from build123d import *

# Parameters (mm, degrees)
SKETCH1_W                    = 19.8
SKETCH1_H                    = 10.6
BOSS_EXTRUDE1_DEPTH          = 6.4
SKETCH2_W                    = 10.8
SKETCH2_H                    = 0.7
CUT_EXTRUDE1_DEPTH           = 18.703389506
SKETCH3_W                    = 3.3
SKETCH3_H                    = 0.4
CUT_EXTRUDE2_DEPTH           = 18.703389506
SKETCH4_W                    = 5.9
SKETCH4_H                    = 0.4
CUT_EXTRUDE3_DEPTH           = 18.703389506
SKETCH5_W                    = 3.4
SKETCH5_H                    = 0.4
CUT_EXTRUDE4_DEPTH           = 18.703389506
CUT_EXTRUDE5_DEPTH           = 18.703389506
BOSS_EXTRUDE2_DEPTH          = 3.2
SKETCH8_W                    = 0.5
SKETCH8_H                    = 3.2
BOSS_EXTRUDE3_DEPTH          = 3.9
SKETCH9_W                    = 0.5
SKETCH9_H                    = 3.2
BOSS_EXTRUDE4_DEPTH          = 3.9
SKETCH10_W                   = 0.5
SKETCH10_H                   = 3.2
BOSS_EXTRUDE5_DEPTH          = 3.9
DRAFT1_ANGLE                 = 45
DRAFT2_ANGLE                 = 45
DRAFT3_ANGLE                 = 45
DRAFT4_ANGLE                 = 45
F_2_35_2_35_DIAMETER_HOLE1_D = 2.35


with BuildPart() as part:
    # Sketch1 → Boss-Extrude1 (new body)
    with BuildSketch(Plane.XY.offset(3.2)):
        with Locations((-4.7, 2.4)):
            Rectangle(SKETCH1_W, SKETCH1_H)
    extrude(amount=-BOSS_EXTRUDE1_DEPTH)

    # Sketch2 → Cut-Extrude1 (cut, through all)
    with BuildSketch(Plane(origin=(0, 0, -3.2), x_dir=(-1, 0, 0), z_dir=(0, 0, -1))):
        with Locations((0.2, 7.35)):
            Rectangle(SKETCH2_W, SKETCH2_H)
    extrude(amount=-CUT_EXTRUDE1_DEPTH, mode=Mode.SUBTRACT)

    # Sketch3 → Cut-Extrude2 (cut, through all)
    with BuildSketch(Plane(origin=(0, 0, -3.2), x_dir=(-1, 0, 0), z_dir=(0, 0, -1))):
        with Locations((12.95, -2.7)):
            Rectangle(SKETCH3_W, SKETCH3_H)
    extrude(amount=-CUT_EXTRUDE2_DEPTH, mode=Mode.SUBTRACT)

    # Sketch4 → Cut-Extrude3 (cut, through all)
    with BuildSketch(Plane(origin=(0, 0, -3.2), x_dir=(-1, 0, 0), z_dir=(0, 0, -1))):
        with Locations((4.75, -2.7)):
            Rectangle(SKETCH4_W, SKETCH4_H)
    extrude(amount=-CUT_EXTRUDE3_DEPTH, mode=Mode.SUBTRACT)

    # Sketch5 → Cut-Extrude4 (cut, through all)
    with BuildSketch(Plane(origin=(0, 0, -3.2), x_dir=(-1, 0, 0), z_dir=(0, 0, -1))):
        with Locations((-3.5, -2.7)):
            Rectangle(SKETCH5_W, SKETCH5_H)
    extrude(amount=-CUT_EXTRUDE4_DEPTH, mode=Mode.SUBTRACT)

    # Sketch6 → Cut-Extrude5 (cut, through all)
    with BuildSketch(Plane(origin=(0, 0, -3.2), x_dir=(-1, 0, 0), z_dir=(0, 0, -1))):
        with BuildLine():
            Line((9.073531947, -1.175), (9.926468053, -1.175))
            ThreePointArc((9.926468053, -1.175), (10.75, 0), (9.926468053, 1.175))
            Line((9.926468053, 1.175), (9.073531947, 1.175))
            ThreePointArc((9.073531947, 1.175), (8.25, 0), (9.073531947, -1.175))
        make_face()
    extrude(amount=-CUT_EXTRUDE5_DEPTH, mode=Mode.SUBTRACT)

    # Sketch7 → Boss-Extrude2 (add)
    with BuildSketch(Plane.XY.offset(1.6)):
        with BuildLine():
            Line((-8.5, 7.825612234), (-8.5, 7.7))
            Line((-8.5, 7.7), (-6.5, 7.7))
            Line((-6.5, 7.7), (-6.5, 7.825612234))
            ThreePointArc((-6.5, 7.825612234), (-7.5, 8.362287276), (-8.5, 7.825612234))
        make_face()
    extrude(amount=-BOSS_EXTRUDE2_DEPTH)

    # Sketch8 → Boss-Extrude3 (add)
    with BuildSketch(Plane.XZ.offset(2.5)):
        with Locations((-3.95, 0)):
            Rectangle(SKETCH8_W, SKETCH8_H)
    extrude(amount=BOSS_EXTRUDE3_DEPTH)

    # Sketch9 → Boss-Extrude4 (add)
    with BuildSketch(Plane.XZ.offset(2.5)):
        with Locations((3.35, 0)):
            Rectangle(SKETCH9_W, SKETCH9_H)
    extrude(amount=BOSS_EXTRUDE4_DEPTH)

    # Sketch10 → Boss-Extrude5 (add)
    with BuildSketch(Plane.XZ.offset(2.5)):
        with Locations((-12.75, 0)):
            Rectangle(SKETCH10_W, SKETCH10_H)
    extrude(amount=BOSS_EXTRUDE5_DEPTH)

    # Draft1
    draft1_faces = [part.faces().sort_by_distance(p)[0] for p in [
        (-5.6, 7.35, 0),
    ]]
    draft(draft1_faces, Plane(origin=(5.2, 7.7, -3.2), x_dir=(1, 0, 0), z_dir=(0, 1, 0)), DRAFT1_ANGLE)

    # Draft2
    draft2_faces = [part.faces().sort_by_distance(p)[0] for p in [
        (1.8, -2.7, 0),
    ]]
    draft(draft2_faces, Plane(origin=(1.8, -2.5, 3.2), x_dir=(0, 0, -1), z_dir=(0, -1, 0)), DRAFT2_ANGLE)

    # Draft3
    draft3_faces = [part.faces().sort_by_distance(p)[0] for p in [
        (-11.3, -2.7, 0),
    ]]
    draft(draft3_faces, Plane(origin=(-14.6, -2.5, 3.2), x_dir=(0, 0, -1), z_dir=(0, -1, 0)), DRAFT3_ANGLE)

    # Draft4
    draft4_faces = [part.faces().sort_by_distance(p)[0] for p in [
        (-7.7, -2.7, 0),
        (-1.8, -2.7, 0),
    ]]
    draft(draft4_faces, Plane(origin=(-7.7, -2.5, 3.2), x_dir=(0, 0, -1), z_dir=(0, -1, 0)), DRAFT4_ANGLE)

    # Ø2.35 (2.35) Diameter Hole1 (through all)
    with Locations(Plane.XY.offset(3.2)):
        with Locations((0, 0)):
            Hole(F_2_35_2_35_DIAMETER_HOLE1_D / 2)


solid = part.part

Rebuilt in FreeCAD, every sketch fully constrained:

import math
import FreeCAD as App
import Part
import Sketcher
Q = App.Units.Quantity


def faces_at(feature, points):
    """Names of the faces that lie closest to the given points."""
    faces = feature.Shape.Faces
    near = lambda p: min(range(len(faces)), key=lambda i: faces[i].distToShape(Part.Vertex(*p))[0])
    return sorted({f"Face{near(p) + 1}" for p in points})

doc = App.newDocument("Part")
body = doc.addObject("PartDesign::Body", "Body")

# Sketch on XY plane
sketch1 = body.newObject("Sketcher::SketchObject", "Sketch")
sketch1.AttachmentSupport = (doc.getObject("XY_Plane"), [""])
sketch1.MapMode = "FlatFace"
sketch1.AttachmentOffset = App.Placement(App.Vector(0, 0, 3.2), App.Rotation())
sketch1.addGeometry(Part.LineSegment(App.Vector(-15, 8, 0), App.Vector(-15, -3, 0)), False)
sketch1.addGeometry(Part.LineSegment(App.Vector(-15, -3, 0), App.Vector(5, -3, 0)), False)
sketch1.addGeometry(Part.LineSegment(App.Vector(5, -3, 0), App.Vector(5, 8, 0)), False)
sketch1.addGeometry(Part.LineSegment(App.Vector(5, 8, 0), App.Vector(-15, 8, 0)), False)
sketch1.addConstraint(Sketcher.Constraint("Coincident", 0, 2, 1, 1))
sketch1.addConstraint(Sketcher.Constraint("Coincident", 1, 2, 2, 1))
sketch1.addConstraint(Sketcher.Constraint("Coincident", 2, 2, 3, 1))
sketch1.addConstraint(Sketcher.Constraint("Coincident", 3, 2, 0, 1))
sketch1.addConstraint(Sketcher.Constraint("Vertical", 0))
sketch1.addConstraint(Sketcher.Constraint("Horizontal", 1))
sketch1.addConstraint(Sketcher.Constraint("Vertical", 2))
sketch1.addConstraint(Sketcher.Constraint("Horizontal", 3))
sketch1.addConstraint(Sketcher.Constraint("DistanceX", 1, 1, 1, 2, Q("19.8 mm")))
sketch1.addConstraint(Sketcher.Constraint("DistanceY", 0, 2, 0, 1, Q("10.6 mm")))
sketch1.addConstraint(Sketcher.Constraint("DistanceX", 0, 2, -1, 1, Q("14.6 mm")))
sketch1.addConstraint(Sketcher.Constraint("DistanceY", 0, 2, -1, 1, Q("2.9 mm")))
pad1 = body.newObject("PartDesign::Pad", "Pad")
pad1.Profile = sketch1
pad1.Length = 6.4
pad1.Reversed = True

# Sketch on XY plane
sketch2 = body.newObject("Sketcher::SketchObject", "Sketch001")
sketch2.AttachmentSupport = (doc.getObject("XY_Plane"), [""])
sketch2.MapMode = "FlatFace"
sketch2.AttachmentOffset = App.Placement(App.Vector(0, 0, -3.2), App.Rotation())
sketch2.addGeometry(Part.LineSegment(App.Vector(5.2, 7.7, 0), App.Vector(5.2, 7, 0)), False)
sketch2.addGeometry(Part.LineSegment(App.Vector(5.2, 7, 0), App.Vector(-5.6, 7, 0)), False)
sketch2.addGeometry(Part.LineSegment(App.Vector(-5.6, 7, 0), App.Vector(-5.6, 7.7, 0)), False)
sketch2.addGeometry(Part.LineSegment(App.Vector(-5.6, 7.7, 0), App.Vector(5.2, 7.7, 0)), False)
sketch2.addConstraint(Sketcher.Constraint("Coincident", 0, 2, 1, 1))
sketch2.addConstraint(Sketcher.Constraint("Coincident", 1, 2, 2, 1))
sketch2.addConstraint(Sketcher.Constraint("Coincident", 2, 2, 3, 1))
sketch2.addConstraint(Sketcher.Constraint("Coincident", 3, 2, 0, 1))
sketch2.addConstraint(Sketcher.Constraint("Vertical", 0))
sketch2.addConstraint(Sketcher.Constraint("Horizontal", 1))
sketch2.addConstraint(Sketcher.Constraint("Vertical", 2))
sketch2.addConstraint(Sketcher.Constraint("Horizontal", 3))
sketch2.addConstraint(Sketcher.Constraint("DistanceX", 1, 2, 1, 1, Q("10.8 mm")))
sketch2.addConstraint(Sketcher.Constraint("DistanceY", 0, 2, 0, 1, Q("0.7 mm")))
sketch2.addConstraint(Sketcher.Constraint("DistanceY", -1, 1, 0, 2, Q("7 mm")))
sketch2.addConstraint(Sketcher.Constraint("DistanceX", -1, 1, 0, 2, Q("5.2 mm")))
pocket1 = body.newObject("PartDesign::Pocket", "Pocket")
pocket1.Profile = sketch2
pocket1.Type = "ThroughAll"
pocket1.Reversed = True

# Sketch on XY plane
sketch3 = body.newObject("Sketcher::SketchObject", "Sketch002")
sketch3.AttachmentSupport = (doc.getObject("XY_Plane"), [""])
sketch3.MapMode = "FlatFace"
sketch3.AttachmentOffset = App.Placement(App.Vector(0, 0, -3.2), App.Rotation())
sketch3.addGeometry(Part.LineSegment(App.Vector(-11.3, -2.5, 0), App.Vector(-11.3, -2.9, 0)), False)
sketch3.addGeometry(Part.LineSegment(App.Vector(-11.3, -2.9, 0), App.Vector(-14.6, -2.9, 0)), False)
sketch3.addGeometry(Part.LineSegment(App.Vector(-14.6, -2.9, 0), App.Vector(-14.6, -2.5, 0)), False)
sketch3.addGeometry(Part.LineSegment(App.Vector(-14.6, -2.5, 0), App.Vector(-11.3, -2.5, 0)), False)
sketch3.addConstraint(Sketcher.Constraint("Coincident", 0, 2, 1, 1))
sketch3.addConstraint(Sketcher.Constraint("Coincident", 1, 2, 2, 1))
sketch3.addConstraint(Sketcher.Constraint("Coincident", 2, 2, 3, 1))
sketch3.addConstraint(Sketcher.Constraint("Coincident", 3, 2, 0, 1))
sketch3.addConstraint(Sketcher.Constraint("Vertical", 0))
sketch3.addConstraint(Sketcher.Constraint("Horizontal", 1))
sketch3.addConstraint(Sketcher.Constraint("Vertical", 2))
sketch3.addConstraint(Sketcher.Constraint("Horizontal", 3))
sketch3.addConstraint(Sketcher.Constraint("DistanceX", 1, 2, 1, 1, Q("3.3 mm")))
sketch3.addConstraint(Sketcher.Constraint("DistanceY", 0, 2, 0, 1, Q("0.4 mm")))
sketch3.addConstraint(Sketcher.Constraint("DistanceX", 0, 2, -1, 1, Q("11.3 mm")))
sketch3.addConstraint(Sketcher.Constraint("DistanceY", 0, 2, -1, 1, Q("2.9 mm")))
pocket2 = body.newObject("PartDesign::Pocket", "Pocket001")
pocket2.Profile = sketch3
pocket2.Type = "ThroughAll"
pocket2.Reversed = True

# Sketch on XY plane
sketch4 = body.newObject("Sketcher::SketchObject", "Sketch003")
sketch4.AttachmentSupport = (doc.getObject("XY_Plane"), [""])
sketch4.MapMode = "FlatFace"
sketch4.AttachmentOffset = App.Placement(App.Vector(0, 0, -3.2), App.Rotation())
sketch4.addGeometry(Part.LineSegment(App.Vector(-1.8, -2.5, 0), App.Vector(-1.8, -2.9, 0)), False)
sketch4.addGeometry(Part.LineSegment(App.Vector(-1.8, -2.9, 0), App.Vector(-7.7, -2.9, 0)), False)
sketch4.addGeometry(Part.LineSegment(App.Vector(-7.7, -2.9, 0), App.Vector(-7.7, -2.5, 0)), False)
sketch4.addGeometry(Part.LineSegment(App.Vector(-7.7, -2.5, 0), App.Vector(-1.8, -2.5, 0)), False)
sketch4.addConstraint(Sketcher.Constraint("Coincident", 0, 2, 1, 1))
sketch4.addConstraint(Sketcher.Constraint("Coincident", 1, 2, 2, 1))
sketch4.addConstraint(Sketcher.Constraint("Coincident", 2, 2, 3, 1))
sketch4.addConstraint(Sketcher.Constraint("Coincident", 3, 2, 0, 1))
sketch4.addConstraint(Sketcher.Constraint("Vertical", 0))
sketch4.addConstraint(Sketcher.Constraint("Horizontal", 1))
sketch4.addConstraint(Sketcher.Constraint("Vertical", 2))
sketch4.addConstraint(Sketcher.Constraint("Horizontal", 3))
sketch4.addConstraint(Sketcher.Constraint("DistanceX", 1, 2, 1, 1, Q("5.9 mm")))
sketch4.addConstraint(Sketcher.Constraint("DistanceY", 0, 2, 0, 1, Q("0.4 mm")))
sketch4.addConstraint(Sketcher.Constraint("DistanceX", 0, 2, -1, 1, Q("1.8 mm")))
sketch4.addConstraint(Sketcher.Constraint("DistanceY", 0, 2, -1, 1, Q("2.9 mm")))
pocket3 = body.newObject("PartDesign::Pocket", "Pocket002")
pocket3.Profile = sketch4
pocket3.Type = "ThroughAll"
pocket3.Reversed = True

# Sketch on XY plane
sketch5 = body.newObject("Sketcher::SketchObject", "Sketch004")
sketch5.AttachmentSupport = (doc.getObject("XY_Plane"), [""])
sketch5.MapMode = "FlatFace"
sketch5.AttachmentOffset = App.Placement(App.Vector(0, 0, -3.2), App.Rotation())
sketch5.addGeometry(Part.LineSegment(App.Vector(5.2, -2.5, 0), App.Vector(5.2, -2.9, 0)), False)
sketch5.addGeometry(Part.LineSegment(App.Vector(5.2, -2.9, 0), App.Vector(1.8, -2.9, 0)), False)
sketch5.addGeometry(Part.LineSegment(App.Vector(1.8, -2.9, 0), App.Vector(1.8, -2.5, 0)), False)
sketch5.addGeometry(Part.LineSegment(App.Vector(1.8, -2.5, 0), App.Vector(5.2, -2.5, 0)), False)
sketch5.addConstraint(Sketcher.Constraint("Coincident", 0, 2, 1, 1))
sketch5.addConstraint(Sketcher.Constraint("Coincident", 1, 2, 2, 1))
sketch5.addConstraint(Sketcher.Constraint("Coincident", 2, 2, 3, 1))
sketch5.addConstraint(Sketcher.Constraint("Coincident", 3, 2, 0, 1))
sketch5.addConstraint(Sketcher.Constraint("Vertical", 0))
sketch5.addConstraint(Sketcher.Constraint("Horizontal", 1))
sketch5.addConstraint(Sketcher.Constraint("Vertical", 2))
sketch5.addConstraint(Sketcher.Constraint("Horizontal", 3))
sketch5.addConstraint(Sketcher.Constraint("DistanceX", 1, 2, 1, 1, Q("3.4 mm")))
sketch5.addConstraint(Sketcher.Constraint("DistanceY", 0, 2, 0, 1, Q("0.4 mm")))
sketch5.addConstraint(Sketcher.Constraint("DistanceX", -1, 1, 0, 2, Q("5.2 mm")))
sketch5.addConstraint(Sketcher.Constraint("DistanceY", 0, 2, -1, 1, Q("2.9 mm")))
pocket4 = body.newObject("PartDesign::Pocket", "Pocket003")
pocket4.Profile = sketch5
pocket4.Type = "ThroughAll"
pocket4.Reversed = True

# Sketch on XY plane
sketch6 = body.newObject("Sketcher::SketchObject", "Sketch005")
sketch6.AttachmentSupport = (doc.getObject("XY_Plane"), [""])
sketch6.MapMode = "FlatFace"
sketch6.AttachmentOffset = App.Placement(App.Vector(0, 0, -3.2), App.Rotation())
sketch6.addGeometry(Part.LineSegment(App.Vector(-9.1, -1.2, 0), App.Vector(-9.9, -1.2, 0)), False)
sketch6.addGeometry(Part.ArcOfCircle(Part.Circle(App.Vector(-9.5, 0, 0), App.Vector(0, 0, 1), 1.2), math.radians(110), math.radians(250)), False)
sketch6.addGeometry(Part.LineSegment(App.Vector(-9.9, 1.2, 0), App.Vector(-9.1, 1.2, 0)), False)
sketch6.addGeometry(Part.ArcOfCircle(Part.Circle(App.Vector(-9.5, 0, 0), App.Vector(0, 0, 1), 1.2), math.radians(-70), math.radians(70)), False)
sketch6.addConstraint(Sketcher.Constraint("Coincident", 0, 2, 1, 2))
sketch6.addConstraint(Sketcher.Constraint("Coincident", 1, 1, 2, 1))
sketch6.addConstraint(Sketcher.Constraint("Coincident", 2, 2, 3, 2))
sketch6.addConstraint(Sketcher.Constraint("Coincident", 3, 1, 0, 1))
sketch6.addConstraint(Sketcher.Constraint("Horizontal", 0))
sketch6.addConstraint(Sketcher.Constraint("Horizontal", 2))
sketch6.addConstraint(Sketcher.Constraint("Coincident", 3, 3, 1, 3))
sketch6.addConstraint(Sketcher.Constraint("Equal", 1, 3))
sketch6.addConstraint(Sketcher.Constraint("Symmetric", 0, 2, 1, 1, -1))
sketch6.addConstraint(Sketcher.Constraint("Radius", 1, Q("1.25 mm")))
sketch6.addConstraint(Sketcher.Constraint("DistanceX", 1, 3, -1, 1, Q("9.5 mm")))
sketch6.addConstraint(Sketcher.Constraint("DistanceY", 0, 2, 1, 1, Q("2.35 mm")))
pocket5 = body.newObject("PartDesign::Pocket", "Pocket004")
pocket5.Profile = sketch6
pocket5.Type = "ThroughAll"
pocket5.Reversed = True

# Sketch on XY plane
sketch7 = body.newObject("Sketcher::SketchObject", "Sketch006")
sketch7.AttachmentSupport = (doc.getObject("XY_Plane"), [""])
sketch7.MapMode = "FlatFace"
sketch7.AttachmentOffset = App.Placement(App.Vector(0, 0, 1.6), App.Rotation())
sketch7.addGeometry(Part.LineSegment(App.Vector(-8.5, 7.83, 0), App.Vector(-8.5, 7.7, 0)), False)
sketch7.addGeometry(Part.LineSegment(App.Vector(-8.5, 7.7, 0), App.Vector(-6.5, 7.7, 0)), False)
sketch7.addGeometry(Part.LineSegment(App.Vector(-6.5, 7.7, 0), App.Vector(-6.5, 7.83, 0)), False)
sketch7.addGeometry(Part.ArcOfCircle(Part.Circle(App.Vector(-7.5, 7.16, 0), App.Vector(0, 0, 1), 1.2), math.radians(34), math.radians(146)), False)
sketch7.addConstraint(Sketcher.Constraint("Coincident", 0, 2, 1, 1))
sketch7.addConstraint(Sketcher.Constraint("Coincident", 1, 2, 2, 1))
sketch7.addConstraint(Sketcher.Constraint("Coincident", 2, 2, 3, 1))
sketch7.addConstraint(Sketcher.Constraint("Coincident", 3, 2, 0, 1))
sketch7.addConstraint(Sketcher.Constraint("Vertical", 0))
sketch7.addConstraint(Sketcher.Constraint("Horizontal", 1))
sketch7.addConstraint(Sketcher.Constraint("Vertical", 2))
sketch7.addConstraint(Sketcher.Constraint("Horizontal", 2, 2, 3, 2))
sketch7.addConstraint(Sketcher.Constraint("Radius", 3, Q("1.2 mm")))
sketch7.addConstraint(Sketcher.Constraint("DistanceX", 1, 1, 1, 2, Q("2 mm")))
sketch7.addConstraint(Sketcher.Constraint("DistanceX", 3, 3, -1, 1, Q("7.5 mm")))
sketch7.addConstraint(Sketcher.Constraint("DistanceY", -1, 1, 0, 2, Q("7.7 mm")))
sketch7.addConstraint(Sketcher.Constraint("DistanceY", 0, 2, 0, 1, Q("0.125612 mm")))
pad2 = body.newObject("PartDesign::Pad", "Pad001")
pad2.Profile = sketch7
pad2.Length = 3.2
pad2.Reversed = True

# Sketch on XZ plane
sketch8 = body.newObject("Sketcher::SketchObject", "Sketch007")
sketch8.AttachmentSupport = (doc.getObject("XZ_Plane"), [""])
sketch8.MapMode = "FlatFace"
sketch8.AttachmentOffset = App.Placement(App.Vector(0, 0, 2.5), App.Rotation())
sketch8.addGeometry(Part.LineSegment(App.Vector(-4.2, 1.6, 0), App.Vector(-4.2, -1.6, 0)), False)
sketch8.addGeometry(Part.LineSegment(App.Vector(-4.2, -1.6, 0), App.Vector(-3.7, -1.6, 0)), False)
sketch8.addGeometry(Part.LineSegment(App.Vector(-3.7, -1.6, 0), App.Vector(-3.7, 1.6, 0)), False)
sketch8.addGeometry(Part.LineSegment(App.Vector(-3.7, 1.6, 0), App.Vector(-4.2, 1.6, 0)), False)
sketch8.addConstraint(Sketcher.Constraint("Coincident", 0, 2, 1, 1))
sketch8.addConstraint(Sketcher.Constraint("Coincident", 1, 2, 2, 1))
sketch8.addConstraint(Sketcher.Constraint("Coincident", 2, 2, 3, 1))
sketch8.addConstraint(Sketcher.Constraint("Coincident", 3, 2, 0, 1))
sketch8.addConstraint(Sketcher.Constraint("Vertical", 0))
sketch8.addConstraint(Sketcher.Constraint("Horizontal", 1))
sketch8.addConstraint(Sketcher.Constraint("Vertical", 2))
sketch8.addConstraint(Sketcher.Constraint("Horizontal", 3))
sketch8.addConstraint(Sketcher.Constraint("DistanceX", 1, 1, 1, 2, Q("0.5 mm")))
sketch8.addConstraint(Sketcher.Constraint("DistanceY", 0, 2, 0, 1, Q("3.2 mm")))
sketch8.addConstraint(Sketcher.Constraint("DistanceX", 0, 2, -1, 1, Q("4.2 mm")))
sketch8.addConstraint(Sketcher.Constraint("DistanceY", 0, 2, -1, 1, Q("1.6 mm")))
pad3 = body.newObject("PartDesign::Pad", "Pad002")
pad3.Profile = sketch8
pad3.Length = 3.9

# Sketch on XZ plane
sketch9 = body.newObject("Sketcher::SketchObject", "Sketch008")
sketch9.AttachmentSupport = (doc.getObject("XZ_Plane"), [""])
sketch9.MapMode = "FlatFace"
sketch9.AttachmentOffset = App.Placement(App.Vector(0, 0, 2.5), App.Rotation())
sketch9.addGeometry(Part.LineSegment(App.Vector(3.1, 1.6, 0), App.Vector(3.1, -1.6, 0)), False)
sketch9.addGeometry(Part.LineSegment(App.Vector(3.1, -1.6, 0), App.Vector(3.6, -1.6, 0)), False)
sketch9.addGeometry(Part.LineSegment(App.Vector(3.6, -1.6, 0), App.Vector(3.6, 1.6, 0)), False)
sketch9.addGeometry(Part.LineSegment(App.Vector(3.6, 1.6, 0), App.Vector(3.1, 1.6, 0)), False)
sketch9.addConstraint(Sketcher.Constraint("Coincident", 0, 2, 1, 1))
sketch9.addConstraint(Sketcher.Constraint("Coincident", 1, 2, 2, 1))
sketch9.addConstraint(Sketcher.Constraint("Coincident", 2, 2, 3, 1))
sketch9.addConstraint(Sketcher.Constraint("Coincident", 3, 2, 0, 1))
sketch9.addConstraint(Sketcher.Constraint("Vertical", 0))
sketch9.addConstraint(Sketcher.Constraint("Horizontal", 1))
sketch9.addConstraint(Sketcher.Constraint("Vertical", 2))
sketch9.addConstraint(Sketcher.Constraint("Horizontal", 3))
sketch9.addConstraint(Sketcher.Constraint("DistanceX", 1, 1, 1, 2, Q("0.5 mm")))
sketch9.addConstraint(Sketcher.Constraint("DistanceY", 0, 2, 0, 1, Q("3.2 mm")))
sketch9.addConstraint(Sketcher.Constraint("DistanceX", -1, 1, 0, 2, Q("3.1 mm")))
sketch9.addConstraint(Sketcher.Constraint("DistanceY", 0, 2, -1, 1, Q("1.6 mm")))
pad4 = body.newObject("PartDesign::Pad", "Pad003")
pad4.Profile = sketch9
pad4.Length = 3.9

# Sketch on XZ plane
sketch10 = body.newObject("Sketcher::SketchObject", "Sketch009")
sketch10.AttachmentSupport = (doc.getObject("XZ_Plane"), [""])
sketch10.MapMode = "FlatFace"
sketch10.AttachmentOffset = App.Placement(App.Vector(0, 0, 2.5), App.Rotation())
sketch10.addGeometry(Part.LineSegment(App.Vector(-13, 1.6, 0), App.Vector(-13, -1.6, 0)), False)
sketch10.addGeometry(Part.LineSegment(App.Vector(-13, -1.6, 0), App.Vector(-12.5, -1.6, 0)), False)
sketch10.addGeometry(Part.LineSegment(App.Vector(-12.5, -1.6, 0), App.Vector(-12.5, 1.6, 0)), False)
sketch10.addGeometry(Part.LineSegment(App.Vector(-12.5, 1.6, 0), App.Vector(-13, 1.6, 0)), False)
sketch10.addConstraint(Sketcher.Constraint("Coincident", 0, 2, 1, 1))
sketch10.addConstraint(Sketcher.Constraint("Coincident", 1, 2, 2, 1))
sketch10.addConstraint(Sketcher.Constraint("Coincident", 2, 2, 3, 1))
sketch10.addConstraint(Sketcher.Constraint("Coincident", 3, 2, 0, 1))
sketch10.addConstraint(Sketcher.Constraint("Vertical", 0))
sketch10.addConstraint(Sketcher.Constraint("Horizontal", 1))
sketch10.addConstraint(Sketcher.Constraint("Vertical", 2))
sketch10.addConstraint(Sketcher.Constraint("Horizontal", 3))
sketch10.addConstraint(Sketcher.Constraint("DistanceX", 1, 1, 1, 2, Q("0.5 mm")))
sketch10.addConstraint(Sketcher.Constraint("DistanceY", 0, 2, 0, 1, Q("3.2 mm")))
sketch10.addConstraint(Sketcher.Constraint("DistanceX", 0, 2, -1, 1, Q("13 mm")))
sketch10.addConstraint(Sketcher.Constraint("DistanceY", 0, 2, -1, 1, Q("1.6 mm")))
pad5 = body.newObject("PartDesign::Pad", "Pad004")
pad5.Profile = sketch10
pad5.Length = 3.9
doc.recompute()

datumplane = body.newObject("PartDesign::Plane", "DatumPlane")
datumplane.AttachmentSupport = (doc.getObject("XZ_Plane"), [""])
datumplane.MapMode = "FlatFace"
datumplane.AttachmentOffset = App.Placement(App.Vector(0, 0, -7.7), App.Rotation())
draft = body.newObject("PartDesign::Draft", "Draft")
draft.Base = (pad5, faces_at(pad5, [(-5.6, 7.35, 0)]))
draft.NeutralPlane = (datumplane, [""])
draft.Angle = 45
draft.Reversed = True
doc.recompute()

datumplane2 = body.newObject("PartDesign::Plane", "DatumPlane001")
datumplane2.AttachmentSupport = (doc.getObject("XZ_Plane"), [""])
datumplane2.MapMode = "FlatFace"
datumplane2.AttachmentOffset = App.Placement(App.Vector(0, 0, 2.5), App.Rotation())
draft2 = body.newObject("PartDesign::Draft", "Draft001")
draft2.Base = (draft, faces_at(draft, [(1.8, -2.7, 0)]))
draft2.NeutralPlane = (datumplane2, [""])
draft2.Angle = 45
draft2.Reversed = False
doc.recompute()

datumplane3 = body.newObject("PartDesign::Plane", "DatumPlane002")
datumplane3.AttachmentSupport = (doc.getObject("XZ_Plane"), [""])
datumplane3.MapMode = "FlatFace"
datumplane3.AttachmentOffset = App.Placement(App.Vector(0, 0, 2.5), App.Rotation())
draft3 = body.newObject("PartDesign::Draft", "Draft002")
draft3.Base = (draft2, faces_at(draft2, [(-11.3, -2.7, 0)]))
draft3.NeutralPlane = (datumplane3, [""])
draft3.Angle = 45
draft3.Reversed = False
doc.recompute()

datumplane4 = body.newObject("PartDesign::Plane", "DatumPlane003")
datumplane4.AttachmentSupport = (doc.getObject("XZ_Plane"), [""])
datumplane4.MapMode = "FlatFace"
datumplane4.AttachmentOffset = App.Placement(App.Vector(0, 0, 2.5), App.Rotation())
draft4 = body.newObject("PartDesign::Draft", "Draft003")
draft4.Base = (draft3, faces_at(draft3, [(-7.7, -2.7, 0), (-1.8, -2.7, 0)]))
draft4.NeutralPlane = (datumplane4, [""])
draft4.Angle = 45
draft4.Reversed = False

# Sketch on XY plane
sketch11 = body.newObject("Sketcher::SketchObject", "Sketch010")
sketch11.AttachmentSupport = (doc.getObject("XY_Plane"), [""])
sketch11.MapMode = "FlatFace"
sketch11.AttachmentOffset = App.Placement(App.Vector(0, 0, 3.2), App.Rotation())
sketch11.addGeometry(Part.Circle(App.Vector(0, 0, 0), App.Vector(0, 0, 1), 1.2), False)
sketch11.addConstraint(Sketcher.Constraint("Coincident", 0, 3, -1, 1))
sketch11.addConstraint(Sketcher.Constraint("Diameter", 0, Q("2.35 mm")))
doc.recompute()
hole = body.newObject("PartDesign::Hole", "Hole")
hole.Profile = sketch11
hole.ThreadType = "None"
hole.Diameter = 2.35
hole.DepthType = "ThroughAll"

doc.recompute()
